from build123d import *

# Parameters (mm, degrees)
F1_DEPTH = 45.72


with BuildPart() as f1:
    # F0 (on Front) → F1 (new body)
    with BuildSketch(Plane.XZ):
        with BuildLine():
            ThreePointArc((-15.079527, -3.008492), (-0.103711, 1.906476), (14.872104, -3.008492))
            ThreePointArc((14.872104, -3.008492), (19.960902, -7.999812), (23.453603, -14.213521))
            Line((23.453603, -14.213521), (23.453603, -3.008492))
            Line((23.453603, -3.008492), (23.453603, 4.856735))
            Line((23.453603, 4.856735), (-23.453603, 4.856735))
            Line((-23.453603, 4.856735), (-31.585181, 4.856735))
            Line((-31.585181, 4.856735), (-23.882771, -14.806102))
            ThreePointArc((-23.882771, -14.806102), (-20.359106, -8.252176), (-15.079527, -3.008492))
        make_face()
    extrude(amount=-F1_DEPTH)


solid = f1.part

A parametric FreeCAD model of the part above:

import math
import FreeCAD as App
import Part
import Sketcher

V = App.Vector
Q = App.Units.Quantity

doc = App.newDocument("Part")
body = doc.addObject("PartDesign::Body", "Body")

# Sketch on XZ plane
sketch1 = body.newObject("Sketcher::SketchObject", "Sketch")
sketch1.AttachmentSupport = (doc.getObject("XZ_Plane"), [""])
sketch1.MapMode = "FlatFace"
sketch1.addGeometry(Part.ArcOfCircle(Part.Circle(V(-0.103711, -23.366523, 0), V(0, 0, 1), 25.272999), math.radians(53.660982), math.radians(126.339018)), False)
sketch1.addGeometry(Part.ArcOfCircle(Part.Circle(V(-0.1037, -23.366516, 0), V(0, 0, 1), 25.272986), math.radians(21.233225), math.radians(53.660994)), False)
sketch1.addGeometry(Part.LineSegment(V(23.453603, -14.213521, 0), V(23.453603, 4.856735, 0)), False)
sketch1.addGeometry(Part.LineSegment(V(23.453603, 4.856735, 0), V(-31.585181, 4.856735, 0)), False)
sketch1.addGeometry(Part.LineSegment(V(-31.585181, 4.856735, 0), V(-23.882771, -14.806102, 0)), False)
sketch1.addGeometry(Part.ArcOfCircle(Part.Circle(V(-0.103717, -23.366519, 0), V(0, 0, 1), 25.272993), math.radians(126.339013), math.radians(160.201214)), False)
sketch1.addConstraint(Sketcher.Constraint("Tangent", 0, 1, 1, 2))
sketch1.addConstraint(Sketcher.Constraint("Coincident", 1, 1, 2, 1))
sketch1.addConstraint(Sketcher.Constraint("Coincident", 2, 2, 3, 1))
sketch1.addConstraint(Sketcher.Constraint("Coincident", 3, 2, 4, 1))
sketch1.addConstraint(Sketcher.Constraint("Coincident", 4, 2, 5, 2))
sketch1.addConstraint(Sketcher.Constraint("Tangent", 5, 1, 0, 2))
sketch1.addConstraint(Sketcher.Constraint("Vertical", 2))
sketch1.addConstraint(Sketcher.Constraint("Horizontal", 3))
sketch1.addConstraint(Sketcher.Constraint("Horizontal", 0, 1, 5, 1))
sketch1.addConstraint(Sketcher.Constraint("Radius", 0, Q("0.995 in")))
sketch1.addConstraint(Sketcher.Constraint("Radius", 1, Q("25.272986 mm")))
sketch1.addConstraint(Sketcher.Constraint("Radius", 5, Q("25.272993 mm")))
sketch1.addConstraint(Sketcher.Constraint("DistanceX", 1, 3, -1, 1, Q("0.1037 mm")))
sketch1.addConstraint(Sketcher.Constraint("DistanceY", 4, 2, -1, 1, Q("14.806102 mm")))
sketch1.addConstraint(Sketcher.Constraint("DistanceX", 0, 1, 1, 1, Q("8.581499 mm")))
sketch1.addConstraint(Sketcher.Constraint("DistanceY", 0, 3, 1, 1, Q("9.153002 mm")))
sketch1.addConstraint(Sketcher.Constraint("Distance", 4, Q("21.11763 mm")))
sketch1.addConstraint(Sketcher.Constraint("DistanceX", 3, 2, 3, 1, Q("55.038784 mm")))
sketch1.addConstraint(Sketcher.Constraint("DistanceY", 2, 1, 2, 2, Q("19.070256 mm")))
pad1 = body.newObject("PartDesign::Pad", "Pad")
pad1.Profile = sketch1
pad1.Length = Q("1.8 in")
pad1.Reversed = True

doc.recompute()
